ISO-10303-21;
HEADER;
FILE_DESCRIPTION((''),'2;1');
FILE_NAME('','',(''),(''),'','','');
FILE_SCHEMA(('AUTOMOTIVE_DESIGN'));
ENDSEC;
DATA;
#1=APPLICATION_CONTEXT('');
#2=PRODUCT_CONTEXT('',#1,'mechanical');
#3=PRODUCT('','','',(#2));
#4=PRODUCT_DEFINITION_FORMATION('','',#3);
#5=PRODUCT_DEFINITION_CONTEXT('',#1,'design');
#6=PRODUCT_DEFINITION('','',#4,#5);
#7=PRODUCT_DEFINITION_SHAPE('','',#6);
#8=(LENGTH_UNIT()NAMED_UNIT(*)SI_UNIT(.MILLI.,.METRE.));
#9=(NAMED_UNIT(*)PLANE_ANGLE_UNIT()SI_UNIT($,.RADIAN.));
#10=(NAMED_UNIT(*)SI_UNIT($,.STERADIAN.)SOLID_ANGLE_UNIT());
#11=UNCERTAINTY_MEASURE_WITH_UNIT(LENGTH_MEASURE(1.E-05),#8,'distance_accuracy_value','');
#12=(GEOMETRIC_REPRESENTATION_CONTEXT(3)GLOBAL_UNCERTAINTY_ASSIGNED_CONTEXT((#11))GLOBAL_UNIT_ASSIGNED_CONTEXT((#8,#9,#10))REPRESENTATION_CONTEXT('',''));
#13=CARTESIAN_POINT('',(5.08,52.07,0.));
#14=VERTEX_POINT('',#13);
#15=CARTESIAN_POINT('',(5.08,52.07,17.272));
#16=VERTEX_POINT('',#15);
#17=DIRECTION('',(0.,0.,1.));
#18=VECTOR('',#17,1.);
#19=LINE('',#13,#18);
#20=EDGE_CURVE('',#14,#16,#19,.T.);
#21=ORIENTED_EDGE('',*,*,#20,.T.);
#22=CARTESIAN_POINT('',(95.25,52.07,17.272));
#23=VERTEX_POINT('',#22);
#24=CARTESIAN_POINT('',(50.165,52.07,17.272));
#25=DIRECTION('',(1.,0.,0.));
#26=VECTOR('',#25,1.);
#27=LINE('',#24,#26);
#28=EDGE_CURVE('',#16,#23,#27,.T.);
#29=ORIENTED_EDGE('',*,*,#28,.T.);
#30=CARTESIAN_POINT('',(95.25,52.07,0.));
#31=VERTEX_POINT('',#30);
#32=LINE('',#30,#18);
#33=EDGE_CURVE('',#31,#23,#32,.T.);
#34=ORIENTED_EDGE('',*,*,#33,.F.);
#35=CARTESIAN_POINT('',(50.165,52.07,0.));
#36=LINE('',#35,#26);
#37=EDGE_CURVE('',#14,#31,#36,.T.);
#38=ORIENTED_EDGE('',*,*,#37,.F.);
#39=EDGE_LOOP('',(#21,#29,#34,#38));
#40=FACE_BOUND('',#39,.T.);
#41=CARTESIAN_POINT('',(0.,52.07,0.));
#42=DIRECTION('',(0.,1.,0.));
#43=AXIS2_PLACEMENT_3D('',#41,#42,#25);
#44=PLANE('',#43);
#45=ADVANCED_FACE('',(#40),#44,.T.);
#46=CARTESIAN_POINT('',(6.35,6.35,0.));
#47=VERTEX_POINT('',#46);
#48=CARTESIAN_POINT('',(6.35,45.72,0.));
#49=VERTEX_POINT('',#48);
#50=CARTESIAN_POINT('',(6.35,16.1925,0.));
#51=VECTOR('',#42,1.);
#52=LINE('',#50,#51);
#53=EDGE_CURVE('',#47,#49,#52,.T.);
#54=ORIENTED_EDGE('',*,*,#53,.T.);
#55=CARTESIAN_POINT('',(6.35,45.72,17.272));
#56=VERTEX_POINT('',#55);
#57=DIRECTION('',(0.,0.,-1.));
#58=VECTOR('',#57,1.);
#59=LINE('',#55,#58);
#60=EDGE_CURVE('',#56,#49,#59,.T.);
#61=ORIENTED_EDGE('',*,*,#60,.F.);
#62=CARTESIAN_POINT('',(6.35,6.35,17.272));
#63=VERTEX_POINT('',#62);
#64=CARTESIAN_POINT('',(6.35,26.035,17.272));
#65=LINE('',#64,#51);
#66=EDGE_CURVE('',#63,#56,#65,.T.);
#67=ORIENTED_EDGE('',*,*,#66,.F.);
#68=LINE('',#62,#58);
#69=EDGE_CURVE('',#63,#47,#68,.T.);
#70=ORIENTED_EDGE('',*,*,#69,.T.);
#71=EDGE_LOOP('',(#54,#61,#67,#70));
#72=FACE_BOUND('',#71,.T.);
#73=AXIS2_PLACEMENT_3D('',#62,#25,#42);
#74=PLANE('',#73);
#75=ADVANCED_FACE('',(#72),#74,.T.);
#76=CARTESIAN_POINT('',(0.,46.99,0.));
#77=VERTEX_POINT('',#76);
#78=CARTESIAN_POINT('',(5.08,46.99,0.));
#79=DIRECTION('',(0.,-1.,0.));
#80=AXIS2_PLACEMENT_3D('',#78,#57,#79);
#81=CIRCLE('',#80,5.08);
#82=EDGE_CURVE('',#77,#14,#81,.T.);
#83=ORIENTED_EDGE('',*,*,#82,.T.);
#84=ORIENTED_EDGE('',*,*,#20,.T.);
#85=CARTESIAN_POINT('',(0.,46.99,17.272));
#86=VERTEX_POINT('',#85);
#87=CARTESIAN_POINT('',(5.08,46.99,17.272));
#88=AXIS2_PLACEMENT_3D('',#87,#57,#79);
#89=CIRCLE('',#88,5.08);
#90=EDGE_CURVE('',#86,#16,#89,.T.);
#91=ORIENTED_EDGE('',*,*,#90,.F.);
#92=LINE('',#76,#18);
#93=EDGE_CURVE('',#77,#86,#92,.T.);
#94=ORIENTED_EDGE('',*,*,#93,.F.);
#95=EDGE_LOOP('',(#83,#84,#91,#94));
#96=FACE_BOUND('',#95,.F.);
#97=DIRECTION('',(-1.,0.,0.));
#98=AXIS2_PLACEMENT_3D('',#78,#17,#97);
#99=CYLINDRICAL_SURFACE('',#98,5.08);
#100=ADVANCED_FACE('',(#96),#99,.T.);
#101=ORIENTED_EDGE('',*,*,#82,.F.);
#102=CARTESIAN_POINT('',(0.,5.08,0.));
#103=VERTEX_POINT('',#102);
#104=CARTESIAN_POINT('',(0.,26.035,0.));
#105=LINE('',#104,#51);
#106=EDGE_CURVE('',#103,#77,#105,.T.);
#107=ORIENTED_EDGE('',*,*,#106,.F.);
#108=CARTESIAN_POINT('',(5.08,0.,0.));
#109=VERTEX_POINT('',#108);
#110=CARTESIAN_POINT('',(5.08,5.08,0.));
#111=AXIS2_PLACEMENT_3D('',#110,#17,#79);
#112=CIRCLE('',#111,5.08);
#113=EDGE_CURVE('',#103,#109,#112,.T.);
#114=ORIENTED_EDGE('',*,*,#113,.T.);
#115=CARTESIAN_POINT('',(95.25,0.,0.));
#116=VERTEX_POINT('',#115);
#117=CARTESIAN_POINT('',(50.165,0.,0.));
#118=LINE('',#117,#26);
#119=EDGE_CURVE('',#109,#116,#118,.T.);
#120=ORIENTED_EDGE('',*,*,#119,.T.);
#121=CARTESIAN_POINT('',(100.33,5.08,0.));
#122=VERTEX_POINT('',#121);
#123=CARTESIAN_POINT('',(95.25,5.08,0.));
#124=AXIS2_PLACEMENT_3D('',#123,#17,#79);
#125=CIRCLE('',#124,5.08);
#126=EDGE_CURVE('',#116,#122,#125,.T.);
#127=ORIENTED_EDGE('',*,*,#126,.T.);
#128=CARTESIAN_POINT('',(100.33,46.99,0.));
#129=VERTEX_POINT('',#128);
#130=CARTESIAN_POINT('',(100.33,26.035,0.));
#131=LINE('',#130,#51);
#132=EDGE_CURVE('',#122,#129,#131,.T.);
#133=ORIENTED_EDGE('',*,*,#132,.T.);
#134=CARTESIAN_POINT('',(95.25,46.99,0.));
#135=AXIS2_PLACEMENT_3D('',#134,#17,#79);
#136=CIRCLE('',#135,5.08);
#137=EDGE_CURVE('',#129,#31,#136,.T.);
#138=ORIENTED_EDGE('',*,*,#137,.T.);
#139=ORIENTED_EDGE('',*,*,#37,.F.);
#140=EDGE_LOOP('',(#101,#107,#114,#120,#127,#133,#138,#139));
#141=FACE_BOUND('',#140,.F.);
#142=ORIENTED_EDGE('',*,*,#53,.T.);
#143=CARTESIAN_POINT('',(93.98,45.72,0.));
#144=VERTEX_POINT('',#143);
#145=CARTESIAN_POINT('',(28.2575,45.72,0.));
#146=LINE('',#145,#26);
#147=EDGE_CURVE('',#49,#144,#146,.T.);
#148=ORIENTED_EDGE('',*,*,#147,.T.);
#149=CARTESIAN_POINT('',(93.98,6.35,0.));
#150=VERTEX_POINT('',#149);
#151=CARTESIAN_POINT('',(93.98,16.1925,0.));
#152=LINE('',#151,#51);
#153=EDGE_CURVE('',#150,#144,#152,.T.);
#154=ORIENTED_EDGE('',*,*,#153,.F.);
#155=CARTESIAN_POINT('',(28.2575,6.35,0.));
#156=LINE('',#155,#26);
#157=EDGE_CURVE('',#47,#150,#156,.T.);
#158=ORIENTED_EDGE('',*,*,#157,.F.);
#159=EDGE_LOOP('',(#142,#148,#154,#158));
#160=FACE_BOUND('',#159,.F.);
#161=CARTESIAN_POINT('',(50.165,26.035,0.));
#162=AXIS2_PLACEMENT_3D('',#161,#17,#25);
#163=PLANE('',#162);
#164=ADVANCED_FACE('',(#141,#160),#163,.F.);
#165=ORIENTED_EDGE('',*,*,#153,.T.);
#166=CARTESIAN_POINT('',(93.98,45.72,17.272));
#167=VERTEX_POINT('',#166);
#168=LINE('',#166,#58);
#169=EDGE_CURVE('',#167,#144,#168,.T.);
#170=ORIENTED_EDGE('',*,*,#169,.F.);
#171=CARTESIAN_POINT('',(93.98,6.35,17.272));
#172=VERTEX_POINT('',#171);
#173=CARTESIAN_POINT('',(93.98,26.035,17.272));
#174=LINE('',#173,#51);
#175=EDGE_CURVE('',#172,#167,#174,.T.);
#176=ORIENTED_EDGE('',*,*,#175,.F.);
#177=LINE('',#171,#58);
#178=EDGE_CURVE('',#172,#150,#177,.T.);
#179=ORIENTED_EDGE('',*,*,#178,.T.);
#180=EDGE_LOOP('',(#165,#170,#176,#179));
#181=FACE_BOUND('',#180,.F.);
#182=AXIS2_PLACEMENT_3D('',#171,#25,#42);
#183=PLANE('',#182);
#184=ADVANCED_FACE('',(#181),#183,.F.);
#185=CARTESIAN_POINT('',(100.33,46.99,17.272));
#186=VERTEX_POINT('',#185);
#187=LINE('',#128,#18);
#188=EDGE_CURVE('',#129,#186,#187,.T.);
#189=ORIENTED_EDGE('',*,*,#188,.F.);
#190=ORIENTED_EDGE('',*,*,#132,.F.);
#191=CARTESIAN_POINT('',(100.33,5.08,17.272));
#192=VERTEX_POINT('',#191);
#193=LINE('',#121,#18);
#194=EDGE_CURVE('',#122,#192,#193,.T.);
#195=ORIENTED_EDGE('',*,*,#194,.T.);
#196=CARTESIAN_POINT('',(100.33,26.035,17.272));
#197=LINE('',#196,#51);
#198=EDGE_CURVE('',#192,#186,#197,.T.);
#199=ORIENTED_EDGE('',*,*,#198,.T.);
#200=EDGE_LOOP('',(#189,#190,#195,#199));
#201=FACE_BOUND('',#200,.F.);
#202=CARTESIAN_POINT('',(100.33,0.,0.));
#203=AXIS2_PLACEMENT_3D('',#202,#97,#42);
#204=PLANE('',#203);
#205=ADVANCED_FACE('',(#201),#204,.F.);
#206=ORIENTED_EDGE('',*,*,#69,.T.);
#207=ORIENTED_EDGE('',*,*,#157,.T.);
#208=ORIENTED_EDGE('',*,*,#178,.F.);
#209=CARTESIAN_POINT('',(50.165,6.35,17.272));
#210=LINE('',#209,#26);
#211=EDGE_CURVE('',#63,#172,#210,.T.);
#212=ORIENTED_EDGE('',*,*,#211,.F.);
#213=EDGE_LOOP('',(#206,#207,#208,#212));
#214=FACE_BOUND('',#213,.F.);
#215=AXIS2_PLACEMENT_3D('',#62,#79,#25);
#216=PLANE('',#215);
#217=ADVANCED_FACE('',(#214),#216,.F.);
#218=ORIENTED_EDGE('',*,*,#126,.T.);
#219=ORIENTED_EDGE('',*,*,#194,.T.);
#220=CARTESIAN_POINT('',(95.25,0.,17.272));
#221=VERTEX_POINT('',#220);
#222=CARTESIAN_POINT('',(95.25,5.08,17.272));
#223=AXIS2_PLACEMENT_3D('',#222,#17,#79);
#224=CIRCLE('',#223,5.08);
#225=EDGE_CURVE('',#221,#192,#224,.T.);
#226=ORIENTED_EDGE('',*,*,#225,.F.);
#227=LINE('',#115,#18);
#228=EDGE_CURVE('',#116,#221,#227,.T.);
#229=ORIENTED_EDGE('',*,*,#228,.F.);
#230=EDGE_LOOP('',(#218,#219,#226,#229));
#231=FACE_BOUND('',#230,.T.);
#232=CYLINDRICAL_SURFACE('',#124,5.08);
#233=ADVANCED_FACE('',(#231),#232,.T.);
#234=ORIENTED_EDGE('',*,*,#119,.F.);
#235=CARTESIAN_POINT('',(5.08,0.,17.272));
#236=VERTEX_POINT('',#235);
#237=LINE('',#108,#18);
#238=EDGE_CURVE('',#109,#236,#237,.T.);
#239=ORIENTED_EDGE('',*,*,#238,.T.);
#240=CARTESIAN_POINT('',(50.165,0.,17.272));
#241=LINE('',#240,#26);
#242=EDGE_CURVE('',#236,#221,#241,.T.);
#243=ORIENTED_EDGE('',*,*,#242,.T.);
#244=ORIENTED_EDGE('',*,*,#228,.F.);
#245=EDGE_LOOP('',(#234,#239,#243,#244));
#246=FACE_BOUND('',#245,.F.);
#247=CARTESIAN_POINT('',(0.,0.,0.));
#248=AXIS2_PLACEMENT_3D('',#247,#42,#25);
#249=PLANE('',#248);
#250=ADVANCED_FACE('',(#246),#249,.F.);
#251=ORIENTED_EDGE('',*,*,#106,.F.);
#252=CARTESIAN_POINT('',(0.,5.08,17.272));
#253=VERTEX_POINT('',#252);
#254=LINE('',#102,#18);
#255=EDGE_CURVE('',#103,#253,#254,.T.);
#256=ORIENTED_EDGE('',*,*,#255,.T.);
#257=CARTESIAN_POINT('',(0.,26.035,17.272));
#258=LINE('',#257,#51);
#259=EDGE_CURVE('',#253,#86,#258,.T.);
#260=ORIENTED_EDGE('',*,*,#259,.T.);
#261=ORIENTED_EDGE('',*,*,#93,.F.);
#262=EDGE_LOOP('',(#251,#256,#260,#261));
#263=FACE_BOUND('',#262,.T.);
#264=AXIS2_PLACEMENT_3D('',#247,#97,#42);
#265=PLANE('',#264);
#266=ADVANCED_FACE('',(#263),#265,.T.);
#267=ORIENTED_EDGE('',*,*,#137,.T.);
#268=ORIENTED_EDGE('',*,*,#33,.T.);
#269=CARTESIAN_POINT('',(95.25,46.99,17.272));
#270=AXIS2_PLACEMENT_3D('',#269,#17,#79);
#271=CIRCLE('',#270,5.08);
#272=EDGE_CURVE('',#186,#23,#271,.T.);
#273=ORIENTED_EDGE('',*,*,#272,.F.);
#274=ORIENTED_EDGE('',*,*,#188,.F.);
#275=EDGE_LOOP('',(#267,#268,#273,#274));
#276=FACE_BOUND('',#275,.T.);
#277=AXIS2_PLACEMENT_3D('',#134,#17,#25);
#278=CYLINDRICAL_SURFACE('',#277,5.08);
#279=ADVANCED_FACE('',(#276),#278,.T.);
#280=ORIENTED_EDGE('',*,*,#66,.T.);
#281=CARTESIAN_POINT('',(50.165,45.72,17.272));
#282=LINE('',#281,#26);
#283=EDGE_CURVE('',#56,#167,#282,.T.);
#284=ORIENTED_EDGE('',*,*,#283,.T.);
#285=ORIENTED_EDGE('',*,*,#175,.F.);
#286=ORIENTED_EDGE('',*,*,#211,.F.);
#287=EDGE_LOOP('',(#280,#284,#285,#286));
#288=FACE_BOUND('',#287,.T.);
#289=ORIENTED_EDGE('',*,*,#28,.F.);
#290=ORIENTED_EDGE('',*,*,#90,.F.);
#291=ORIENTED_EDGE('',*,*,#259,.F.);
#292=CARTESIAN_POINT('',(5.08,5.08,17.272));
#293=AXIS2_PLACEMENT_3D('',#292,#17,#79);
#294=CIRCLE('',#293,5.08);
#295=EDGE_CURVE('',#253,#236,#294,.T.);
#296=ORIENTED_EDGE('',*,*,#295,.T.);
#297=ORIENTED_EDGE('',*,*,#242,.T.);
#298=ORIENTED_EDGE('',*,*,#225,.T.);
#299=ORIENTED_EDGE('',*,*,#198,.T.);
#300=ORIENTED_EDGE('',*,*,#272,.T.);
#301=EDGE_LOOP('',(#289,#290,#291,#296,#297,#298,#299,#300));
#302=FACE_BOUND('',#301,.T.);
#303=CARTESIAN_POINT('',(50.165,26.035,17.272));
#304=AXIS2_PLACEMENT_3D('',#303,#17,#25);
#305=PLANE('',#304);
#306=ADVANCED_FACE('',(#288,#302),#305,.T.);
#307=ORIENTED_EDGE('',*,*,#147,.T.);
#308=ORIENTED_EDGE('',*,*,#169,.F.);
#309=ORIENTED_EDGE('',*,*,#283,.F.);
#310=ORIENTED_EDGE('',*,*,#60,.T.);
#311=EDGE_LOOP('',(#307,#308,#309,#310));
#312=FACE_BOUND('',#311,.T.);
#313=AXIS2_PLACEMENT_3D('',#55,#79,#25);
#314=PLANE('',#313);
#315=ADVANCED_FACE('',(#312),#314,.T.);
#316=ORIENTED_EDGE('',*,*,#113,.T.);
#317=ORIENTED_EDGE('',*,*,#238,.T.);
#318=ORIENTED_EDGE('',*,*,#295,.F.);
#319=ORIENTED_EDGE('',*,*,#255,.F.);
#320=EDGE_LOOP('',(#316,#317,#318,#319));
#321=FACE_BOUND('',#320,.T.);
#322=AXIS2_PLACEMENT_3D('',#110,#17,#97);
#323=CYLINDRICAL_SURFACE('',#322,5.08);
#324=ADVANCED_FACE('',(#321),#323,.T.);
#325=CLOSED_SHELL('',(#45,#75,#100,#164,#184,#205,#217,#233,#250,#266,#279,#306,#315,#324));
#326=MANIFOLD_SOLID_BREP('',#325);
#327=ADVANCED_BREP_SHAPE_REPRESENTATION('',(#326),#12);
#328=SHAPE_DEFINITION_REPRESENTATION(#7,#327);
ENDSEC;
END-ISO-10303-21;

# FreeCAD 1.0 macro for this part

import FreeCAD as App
import Part
import Sketcher
from FreeCAD import Vector
Q = App.Units.Quantity


def edges_at(feature, points):
    """Names of the edges that pass closest to the given points."""
    edges = feature.Shape.Edges
    near = lambda p: min(range(len(edges)), key=lambda i: edges[i].distToShape(Part.Vertex(*p))[0])
    return sorted({f"Edge{near(p) + 1}" for p in points})

doc = App.newDocument("Part")
params = doc.addObject("Spreadsheet::Sheet", "Params")
for row, (alias, value) in enumerate([
    ("sketch1_width", "3.95 in"),
    ("sketch1_height", "2.05 in"),
    ("pad1_length", "0.68 in"),
    ("fillet_radius", "0.2 in"),
    ("sketch2_width", "3.45 in"),
    ("sketch2_height", "1.55 in"),
    ("pocket1_length", "1 in"),
], start=1):
    params.set(f"A{row}", alias)
    params.set(f"B{row}", "=" + value)
    params.setAlias(f"B{row}", alias)

body = doc.addObject("PartDesign::Body", "Body")

# Sketch on XY plane
sketch1 = doc.addObject("Sketcher::SketchObject", "Sketch")
body.addObject(sketch1)
sketch1.AttachmentSupport = (doc.XY_Plane, [""])
sketch1.MapMode = "FlatFace"
sketch1.addGeometry([
    Part.LineSegment(Vector(0, 52, 0), Vector(0, 0, 0)),
    Part.LineSegment(Vector(0, 0, 0), Vector(100, 0, 0)),
    Part.LineSegment(Vector(100, 0, 0), Vector(100, 52, 0)),
    Part.LineSegment(Vector(100, 52, 0), Vector(0, 52, 0)),
], False)
sketch1.addConstraint([
    Sketcher.Constraint("Coincident", 0, 2, 1, 1),
    Sketcher.Constraint("Coincident", 1, 2, 2, 1),
    Sketcher.Constraint("Coincident", 2, 2, 3, 1),
    Sketcher.Constraint("Coincident", 3, 2, 0, 1),
    Sketcher.Constraint("Vertical", 0),
    Sketcher.Constraint("Horizontal", 1),
    Sketcher.Constraint("Vertical", 2),
    Sketcher.Constraint("Horizontal", 3),
    Sketcher.Constraint("Coincident", 0, 2, -1, 1),
    Sketcher.Constraint("DistanceX", 1, 1, 1, 2, Q("3.95 in")),
    Sketcher.Constraint("DistanceY", 0, 2, 0, 1, Q("2.05 in")),
])
sketch1.setExpression("Constraints[9]", "Params.sketch1_width")
sketch1.setExpression("Constraints[10]", "Params.sketch1_height")
pad1 = doc.addObject("PartDesign::Pad", "Pad")
body.addObject(pad1)
pad1.Profile = sketch1
pad1.setExpression("Length", "Params.pad1_length")
doc.recompute()

fillet = doc.addObject("PartDesign::Fillet", "Fillet")
body.addObject(fillet)
fillet.Base = (pad1, edges_at(pad1, [
    (0, 52.07, 8.636),
    (0, 0, 8.636),
    (100.33, 0, 8.636),
    (100.33, 52.07, 8.636),
]))
fillet.setExpression("Radius", "Params.fillet_radius")

# Sketch on XY plane
sketch2 = doc.addObject("Sketcher::SketchObject", "Sketch001")
body.addObject(sketch2)
sketch2.AttachmentSupport = (doc.XY_Plane, [""])
sketch2.MapMode = "FlatFace"
sketch2.AttachmentOffset = App.Placement(Vector(0, 0, 0.68 * 25.4), App.Rotation())
sketch2.addGeometry([
    Part.LineSegment(Vector(6, 46, 0), Vector(6, 6, 0)),
    Part.LineSegment(Vector(6, 6, 0), Vector(94, 6, 0)),
    Part.LineSegment(Vector(94, 6, 0), Vector(94, 46, 0)),
    Part.LineSegment(Vector(94, 46, 0), Vector(6, 46, 0)),
], False)
sketch2.addConstraint([
    Sketcher.Constraint("Coincident", 0, 2, 1, 1),
    Sketcher.Constraint("Coincident", 1, 2, 2, 1),
    Sketcher.Constraint("Coincident", 2, 2, 3, 1),
    Sketcher.Constraint("Coincident", 3, 2, 0, 1),
    Sketcher.Constraint("Vertical", 0),
    Sketcher.Constraint("Horizontal", 1),
    Sketcher.Constraint("Vertical", 2),
    Sketcher.Constraint("Horizontal", 3),
    Sketcher.Constraint("DistanceX", 1, 1, 1, 2, Q("3.45 in")),
    Sketcher.Constraint("DistanceY", 0, 2, 0, 1, Q("1.55 in")),
    Sketcher.Constraint("DistanceX", -1, 1, 1, 2, Q("3.7 in")),
    Sketcher.Constraint("DistanceY", -1, 1, 2, 2, Q("1.8 in")),
])
sketch2.setExpression("Constraints[8]", "Params.sketch2_width")
sketch2.setExpression("Constraints[9]", "Params.sketch2_height")
pocket1 = doc.addObject("PartDesign::Pocket", "Pocket")
body.addObject(pocket1)
pocket1.Profile = sketch2
pocket1.setExpression("Length", "Params.pocket1_length")

doc.recompute()
